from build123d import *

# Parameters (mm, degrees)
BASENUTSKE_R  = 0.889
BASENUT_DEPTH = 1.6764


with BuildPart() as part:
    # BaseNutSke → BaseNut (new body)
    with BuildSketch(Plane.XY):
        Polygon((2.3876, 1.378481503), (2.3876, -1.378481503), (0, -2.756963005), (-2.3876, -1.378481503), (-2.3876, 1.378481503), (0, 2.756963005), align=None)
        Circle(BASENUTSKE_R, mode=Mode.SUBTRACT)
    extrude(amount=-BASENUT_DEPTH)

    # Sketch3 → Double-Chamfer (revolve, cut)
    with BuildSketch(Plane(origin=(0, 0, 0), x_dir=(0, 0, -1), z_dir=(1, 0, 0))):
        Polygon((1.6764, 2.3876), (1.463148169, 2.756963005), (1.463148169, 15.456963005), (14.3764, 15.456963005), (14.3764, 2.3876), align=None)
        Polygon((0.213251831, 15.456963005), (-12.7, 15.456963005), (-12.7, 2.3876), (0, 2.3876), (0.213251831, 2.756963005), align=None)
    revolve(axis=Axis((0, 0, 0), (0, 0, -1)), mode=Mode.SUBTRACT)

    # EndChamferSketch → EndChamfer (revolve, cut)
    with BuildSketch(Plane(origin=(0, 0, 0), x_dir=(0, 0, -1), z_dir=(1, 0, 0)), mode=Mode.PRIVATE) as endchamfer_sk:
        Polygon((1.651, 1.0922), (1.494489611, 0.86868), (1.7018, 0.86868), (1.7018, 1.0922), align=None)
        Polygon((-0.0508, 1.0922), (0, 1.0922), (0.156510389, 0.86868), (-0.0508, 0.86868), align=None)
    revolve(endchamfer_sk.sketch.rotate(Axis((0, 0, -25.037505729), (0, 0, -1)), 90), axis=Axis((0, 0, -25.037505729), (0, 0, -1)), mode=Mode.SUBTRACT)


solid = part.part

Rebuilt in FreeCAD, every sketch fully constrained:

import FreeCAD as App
import Part
import Sketcher
from FreeCAD import Vector
Q = App.Units.Quantity

doc = App.newDocument("Part")
body = doc.addObject("PartDesign::Body", "Body")

# Sketch on XY plane
sketch1 = doc.addObject("Sketcher::SketchObject", "Sketch")
body.addObject(sketch1)
sketch1.AttachmentSupport = (doc.XY_Plane, [""])
sketch1.MapMode = "FlatFace"
sketch1.addGeometry([
    Part.LineSegment(Vector(2.4, -1.4, 0), Vector(2.4, 1.4, 0)),  # 0
    Part.LineSegment(Vector(2.4, 1.4, 0), Vector(0, 2.8, 0)),  # 1
    Part.LineSegment(Vector(0, 2.8, 0), Vector(-2.4, 1.4, 0)),  # 2
    Part.LineSegment(Vector(-2.4, 1.4, 0), Vector(-2.4, -1.4, 0)),  # 3
    Part.LineSegment(Vector(-2.4, -1.4, 0), Vector(0, -2.8, 0)),  # 4
    Part.LineSegment(Vector(0, -2.8, 0), Vector(2.4, -1.4, 0)),  # 5
    Part.Circle(Vector(0, 0, 0), Vector(0, 0, 1), 0.9),  # 6
], False)
sketch1.addConstraint([
    Sketcher.Constraint("Coincident", 0, 2, 1, 1),
    Sketcher.Constraint("Coincident", 1, 2, 2, 1),
    Sketcher.Constraint("Coincident", 2, 2, 3, 1),
    Sketcher.Constraint("Coincident", 3, 2, 4, 1),
    Sketcher.Constraint("Coincident", 4, 2, 5, 1),
    Sketcher.Constraint("Coincident", 5, 2, 0, 1),
    Sketcher.Constraint("Vertical", 0),
    Sketcher.Constraint("Vertical", 3),
    Sketcher.Constraint("Coincident", 6, 3, -1, 1),
    Sketcher.Constraint("Symmetric", 0, 2, 3, 2, -1, 1),
    Sketcher.Constraint("Symmetric", 1, 2, 4, 2, -1, 1),
    Sketcher.Constraint("PointOnObject", 1, 2, -2),
    Sketcher.Constraint("Parallel", 2, 5),
    Sketcher.Constraint("Horizontal", 0, 2, 2, 2),
    Sketcher.Constraint("Diameter", 6, Q("0.07 in")),
    Sketcher.Constraint("Angle", 1, Q("150 deg")),
    Sketcher.Constraint("DistanceX", -1, 1, 0, 2, Q("0.094 in")),
    Sketcher.Constraint("DistanceY", 0, 1, 0, 2, 2.756963),
])
pad1 = doc.addObject("PartDesign::Pad", "Pad")
body.addObject(pad1)
pad1.Profile = sketch1
pad1.Length = Q("0.066 in")
pad1.Reversed = True

# Sketch on YZ plane
sketch2 = doc.addObject("Sketcher::SketchObject", "Sketch001")
body.addObject(sketch2)
sketch2.AttachmentSupport = (doc.YZ_Plane, [""])
sketch2.MapMode = "FlatFace"
sketch2.addGeometry([
    Part.LineSegment(Vector(2.76, -1.46, 0), Vector(2.39, -1.68, 0)),  # 0
    Part.LineSegment(Vector(2.39, -1.68, 0), Vector(2.39, -14.38, 0)),  # 1
    Part.LineSegment(Vector(2.39, -14.38, 0), Vector(15.46, -14.38, 0)),  # 2
    Part.LineSegment(Vector(15.46, -14.38, 0), Vector(15.46, -1.46, 0)),  # 3
    Part.LineSegment(Vector(15.46, -1.46, 0), Vector(2.76, -1.46, 0)),  # 4
    Part.LineSegment(Vector(15.46, -0.21, 0), Vector(15.46, 12.7, 0)),  # 5
    Part.LineSegment(Vector(15.46, 12.7, 0), Vector(2.39, 12.7, 0)),  # 6
    Part.LineSegment(Vector(2.39, 12.7, 0), Vector(2.39, 0, 0)),  # 7
    Part.LineSegment(Vector(2.39, 0, 0), Vector(2.76, -0.21, 0)),  # 8
    Part.LineSegment(Vector(2.76, -0.21, 0), Vector(15.46, -0.21, 0)),  # 9
], False)
sketch2.addConstraint([
    Sketcher.Constraint("Coincident", 0, 2, 1, 1),
    Sketcher.Constraint("Coincident", 1, 2, 2, 1),
    Sketcher.Constraint("Coincident", 2, 2, 3, 1),
    Sketcher.Constraint("Coincident", 3, 2, 4, 1),
    Sketcher.Constraint("Coincident", 4, 2, 0, 1),
    Sketcher.Constraint("Coincident", 5, 2, 6, 1),
    Sketcher.Constraint("Coincident", 6, 2, 7, 1),
    Sketcher.Constraint("Coincident", 7, 2, 8, 1),
    Sketcher.Constraint("Coincident", 8, 2, 9, 1),
    Sketcher.Constraint("Coincident", 9, 2, 5, 1),
    Sketcher.Constraint("Vertical", 1),
    Sketcher.Constraint("Horizontal", 2),
    Sketcher.Constraint("Vertical", 3),
    Sketcher.Constraint("Horizontal", 4),
    Sketcher.Constraint("Vertical", 5),
    Sketcher.Constraint("Horizontal", 6),
    Sketcher.Constraint("Vertical", 7),
    Sketcher.Constraint("Horizontal", 9),
    Sketcher.Constraint("PointOnObject", 7, 2, -1),
    Sketcher.Constraint("Vertical", 3, 2, 5, 2),
    Sketcher.Constraint("Vertical", 1, 2, 6, 2),
    Sketcher.Constraint("Vertical", 4, 2, 8, 2),
    Sketcher.Constraint("Equal", 9, 1),
    Sketcher.Constraint("Equal", 3, 5),
    Sketcher.Constraint("Equal", 1, 7),
    Sketcher.Constraint("DistanceX", 4, 2, 4, 1, Q("0.5 in")),
    Sketcher.Constraint("Angle", 0, Q("-150 deg")),
    Sketcher.Constraint("DistanceX", -1, 1, 0, 2, Q("0.094 in")),
    Sketcher.Constraint("DistanceY", 0, 2, -1, 1, Q("0.066 in")),
    Sketcher.Constraint("DistanceY", 3, 1, 3, 2, 12.913252),
])
groove = doc.addObject("PartDesign::Groove", "Groove")
body.addObject(groove)
groove.Profile = sketch2
groove.ReferenceAxis = (sketch2, ["V_Axis"])
groove.Angle = 360

# Sketch on YZ plane
sketch3 = doc.addObject("Sketcher::SketchObject", "Sketch002")
body.addObject(sketch3)
sketch3.AttachmentSupport = (doc.YZ_Plane, [""])
sketch3.MapMode = "FlatFace"
sketch3.addGeometry([
    Part.LineSegment(Vector(1.09, -1.65, 0), Vector(0.87, -1.49, 0)),  # 0
    Part.LineSegment(Vector(0.87, -1.49, 0), Vector(0.87, -1.7, 0)),  # 1
    Part.LineSegment(Vector(0.87, -1.7, 0), Vector(1.09, -1.7, 0)),  # 2
    Part.LineSegment(Vector(1.09, -1.7, 0), Vector(1.09, -1.65, 0)),  # 3
    Part.LineSegment(Vector(1.09, 0, 0), Vector(1.09, 0.05, 0)),  # 4
    Part.LineSegment(Vector(1.09, 0.05, 0), Vector(0.87, 0.05, 0)),  # 5
    Part.LineSegment(Vector(0.87, 0.05, 0), Vector(0.87, -0.16, 0)),  # 6
    Part.LineSegment(Vector(0.87, -0.16, 0), Vector(1.09, 0, 0)),  # 7
], False)
sketch3.addConstraint([
    Sketcher.Constraint("Coincident", 0, 2, 1, 1),
    Sketcher.Constraint("Coincident", 1, 2, 2, 1),
    Sketcher.Constraint("Coincident", 2, 2, 3, 1),
    Sketcher.Constraint("Coincident", 3, 2, 0, 1),
    Sketcher.Constraint("Coincident", 4, 2, 5, 1),
    Sketcher.Constraint("Coincident", 5, 2, 6, 1),
    Sketcher.Constraint("Coincident", 6, 2, 7, 1),
    Sketcher.Constraint("Coincident", 7, 2, 4, 1),
    Sketcher.Constraint("Vertical", 1),
    Sketcher.Constraint("Horizontal", 2),
    Sketcher.Constraint("Vertical", 3),
    Sketcher.Constraint("Vertical", 4),
    Sketcher.Constraint("Horizontal", 5),
    Sketcher.Constraint("Vertical", 6),
    Sketcher.Constraint("PointOnObject", 7, 2, -1),
    Sketcher.Constraint("Vertical", 3, 2, 4, 2),
    Sketcher.Constraint("Vertical", 1, 2, 5, 2),
    Sketcher.Constraint("Equal", 3, 4),
    Sketcher.Constraint("Equal", 1, 6),
    Sketcher.Constraint("Angle", 0, Q("145 deg")),
    Sketcher.Constraint("DistanceY", 3, 1, 3, 2, Q("0.002 in")),
    Sketcher.Constraint("DistanceX", 2, 1, 2, 2, Q("0.0088 in")),
    Sketcher.Constraint("DistanceY", 1, 2, -1, 1, Q("0.067 in")),
    Sketcher.Constraint("DistanceX", -1, 1, 2, 2, Q("0.043 in")),
])
groove2 = doc.addObject("PartDesign::Groove", "Groove001")
body.addObject(groove2)
groove2.Profile = sketch3
groove2.ReferenceAxis = (sketch3, ["V_Axis"])
groove2.Angle = 360

doc.recompute()
